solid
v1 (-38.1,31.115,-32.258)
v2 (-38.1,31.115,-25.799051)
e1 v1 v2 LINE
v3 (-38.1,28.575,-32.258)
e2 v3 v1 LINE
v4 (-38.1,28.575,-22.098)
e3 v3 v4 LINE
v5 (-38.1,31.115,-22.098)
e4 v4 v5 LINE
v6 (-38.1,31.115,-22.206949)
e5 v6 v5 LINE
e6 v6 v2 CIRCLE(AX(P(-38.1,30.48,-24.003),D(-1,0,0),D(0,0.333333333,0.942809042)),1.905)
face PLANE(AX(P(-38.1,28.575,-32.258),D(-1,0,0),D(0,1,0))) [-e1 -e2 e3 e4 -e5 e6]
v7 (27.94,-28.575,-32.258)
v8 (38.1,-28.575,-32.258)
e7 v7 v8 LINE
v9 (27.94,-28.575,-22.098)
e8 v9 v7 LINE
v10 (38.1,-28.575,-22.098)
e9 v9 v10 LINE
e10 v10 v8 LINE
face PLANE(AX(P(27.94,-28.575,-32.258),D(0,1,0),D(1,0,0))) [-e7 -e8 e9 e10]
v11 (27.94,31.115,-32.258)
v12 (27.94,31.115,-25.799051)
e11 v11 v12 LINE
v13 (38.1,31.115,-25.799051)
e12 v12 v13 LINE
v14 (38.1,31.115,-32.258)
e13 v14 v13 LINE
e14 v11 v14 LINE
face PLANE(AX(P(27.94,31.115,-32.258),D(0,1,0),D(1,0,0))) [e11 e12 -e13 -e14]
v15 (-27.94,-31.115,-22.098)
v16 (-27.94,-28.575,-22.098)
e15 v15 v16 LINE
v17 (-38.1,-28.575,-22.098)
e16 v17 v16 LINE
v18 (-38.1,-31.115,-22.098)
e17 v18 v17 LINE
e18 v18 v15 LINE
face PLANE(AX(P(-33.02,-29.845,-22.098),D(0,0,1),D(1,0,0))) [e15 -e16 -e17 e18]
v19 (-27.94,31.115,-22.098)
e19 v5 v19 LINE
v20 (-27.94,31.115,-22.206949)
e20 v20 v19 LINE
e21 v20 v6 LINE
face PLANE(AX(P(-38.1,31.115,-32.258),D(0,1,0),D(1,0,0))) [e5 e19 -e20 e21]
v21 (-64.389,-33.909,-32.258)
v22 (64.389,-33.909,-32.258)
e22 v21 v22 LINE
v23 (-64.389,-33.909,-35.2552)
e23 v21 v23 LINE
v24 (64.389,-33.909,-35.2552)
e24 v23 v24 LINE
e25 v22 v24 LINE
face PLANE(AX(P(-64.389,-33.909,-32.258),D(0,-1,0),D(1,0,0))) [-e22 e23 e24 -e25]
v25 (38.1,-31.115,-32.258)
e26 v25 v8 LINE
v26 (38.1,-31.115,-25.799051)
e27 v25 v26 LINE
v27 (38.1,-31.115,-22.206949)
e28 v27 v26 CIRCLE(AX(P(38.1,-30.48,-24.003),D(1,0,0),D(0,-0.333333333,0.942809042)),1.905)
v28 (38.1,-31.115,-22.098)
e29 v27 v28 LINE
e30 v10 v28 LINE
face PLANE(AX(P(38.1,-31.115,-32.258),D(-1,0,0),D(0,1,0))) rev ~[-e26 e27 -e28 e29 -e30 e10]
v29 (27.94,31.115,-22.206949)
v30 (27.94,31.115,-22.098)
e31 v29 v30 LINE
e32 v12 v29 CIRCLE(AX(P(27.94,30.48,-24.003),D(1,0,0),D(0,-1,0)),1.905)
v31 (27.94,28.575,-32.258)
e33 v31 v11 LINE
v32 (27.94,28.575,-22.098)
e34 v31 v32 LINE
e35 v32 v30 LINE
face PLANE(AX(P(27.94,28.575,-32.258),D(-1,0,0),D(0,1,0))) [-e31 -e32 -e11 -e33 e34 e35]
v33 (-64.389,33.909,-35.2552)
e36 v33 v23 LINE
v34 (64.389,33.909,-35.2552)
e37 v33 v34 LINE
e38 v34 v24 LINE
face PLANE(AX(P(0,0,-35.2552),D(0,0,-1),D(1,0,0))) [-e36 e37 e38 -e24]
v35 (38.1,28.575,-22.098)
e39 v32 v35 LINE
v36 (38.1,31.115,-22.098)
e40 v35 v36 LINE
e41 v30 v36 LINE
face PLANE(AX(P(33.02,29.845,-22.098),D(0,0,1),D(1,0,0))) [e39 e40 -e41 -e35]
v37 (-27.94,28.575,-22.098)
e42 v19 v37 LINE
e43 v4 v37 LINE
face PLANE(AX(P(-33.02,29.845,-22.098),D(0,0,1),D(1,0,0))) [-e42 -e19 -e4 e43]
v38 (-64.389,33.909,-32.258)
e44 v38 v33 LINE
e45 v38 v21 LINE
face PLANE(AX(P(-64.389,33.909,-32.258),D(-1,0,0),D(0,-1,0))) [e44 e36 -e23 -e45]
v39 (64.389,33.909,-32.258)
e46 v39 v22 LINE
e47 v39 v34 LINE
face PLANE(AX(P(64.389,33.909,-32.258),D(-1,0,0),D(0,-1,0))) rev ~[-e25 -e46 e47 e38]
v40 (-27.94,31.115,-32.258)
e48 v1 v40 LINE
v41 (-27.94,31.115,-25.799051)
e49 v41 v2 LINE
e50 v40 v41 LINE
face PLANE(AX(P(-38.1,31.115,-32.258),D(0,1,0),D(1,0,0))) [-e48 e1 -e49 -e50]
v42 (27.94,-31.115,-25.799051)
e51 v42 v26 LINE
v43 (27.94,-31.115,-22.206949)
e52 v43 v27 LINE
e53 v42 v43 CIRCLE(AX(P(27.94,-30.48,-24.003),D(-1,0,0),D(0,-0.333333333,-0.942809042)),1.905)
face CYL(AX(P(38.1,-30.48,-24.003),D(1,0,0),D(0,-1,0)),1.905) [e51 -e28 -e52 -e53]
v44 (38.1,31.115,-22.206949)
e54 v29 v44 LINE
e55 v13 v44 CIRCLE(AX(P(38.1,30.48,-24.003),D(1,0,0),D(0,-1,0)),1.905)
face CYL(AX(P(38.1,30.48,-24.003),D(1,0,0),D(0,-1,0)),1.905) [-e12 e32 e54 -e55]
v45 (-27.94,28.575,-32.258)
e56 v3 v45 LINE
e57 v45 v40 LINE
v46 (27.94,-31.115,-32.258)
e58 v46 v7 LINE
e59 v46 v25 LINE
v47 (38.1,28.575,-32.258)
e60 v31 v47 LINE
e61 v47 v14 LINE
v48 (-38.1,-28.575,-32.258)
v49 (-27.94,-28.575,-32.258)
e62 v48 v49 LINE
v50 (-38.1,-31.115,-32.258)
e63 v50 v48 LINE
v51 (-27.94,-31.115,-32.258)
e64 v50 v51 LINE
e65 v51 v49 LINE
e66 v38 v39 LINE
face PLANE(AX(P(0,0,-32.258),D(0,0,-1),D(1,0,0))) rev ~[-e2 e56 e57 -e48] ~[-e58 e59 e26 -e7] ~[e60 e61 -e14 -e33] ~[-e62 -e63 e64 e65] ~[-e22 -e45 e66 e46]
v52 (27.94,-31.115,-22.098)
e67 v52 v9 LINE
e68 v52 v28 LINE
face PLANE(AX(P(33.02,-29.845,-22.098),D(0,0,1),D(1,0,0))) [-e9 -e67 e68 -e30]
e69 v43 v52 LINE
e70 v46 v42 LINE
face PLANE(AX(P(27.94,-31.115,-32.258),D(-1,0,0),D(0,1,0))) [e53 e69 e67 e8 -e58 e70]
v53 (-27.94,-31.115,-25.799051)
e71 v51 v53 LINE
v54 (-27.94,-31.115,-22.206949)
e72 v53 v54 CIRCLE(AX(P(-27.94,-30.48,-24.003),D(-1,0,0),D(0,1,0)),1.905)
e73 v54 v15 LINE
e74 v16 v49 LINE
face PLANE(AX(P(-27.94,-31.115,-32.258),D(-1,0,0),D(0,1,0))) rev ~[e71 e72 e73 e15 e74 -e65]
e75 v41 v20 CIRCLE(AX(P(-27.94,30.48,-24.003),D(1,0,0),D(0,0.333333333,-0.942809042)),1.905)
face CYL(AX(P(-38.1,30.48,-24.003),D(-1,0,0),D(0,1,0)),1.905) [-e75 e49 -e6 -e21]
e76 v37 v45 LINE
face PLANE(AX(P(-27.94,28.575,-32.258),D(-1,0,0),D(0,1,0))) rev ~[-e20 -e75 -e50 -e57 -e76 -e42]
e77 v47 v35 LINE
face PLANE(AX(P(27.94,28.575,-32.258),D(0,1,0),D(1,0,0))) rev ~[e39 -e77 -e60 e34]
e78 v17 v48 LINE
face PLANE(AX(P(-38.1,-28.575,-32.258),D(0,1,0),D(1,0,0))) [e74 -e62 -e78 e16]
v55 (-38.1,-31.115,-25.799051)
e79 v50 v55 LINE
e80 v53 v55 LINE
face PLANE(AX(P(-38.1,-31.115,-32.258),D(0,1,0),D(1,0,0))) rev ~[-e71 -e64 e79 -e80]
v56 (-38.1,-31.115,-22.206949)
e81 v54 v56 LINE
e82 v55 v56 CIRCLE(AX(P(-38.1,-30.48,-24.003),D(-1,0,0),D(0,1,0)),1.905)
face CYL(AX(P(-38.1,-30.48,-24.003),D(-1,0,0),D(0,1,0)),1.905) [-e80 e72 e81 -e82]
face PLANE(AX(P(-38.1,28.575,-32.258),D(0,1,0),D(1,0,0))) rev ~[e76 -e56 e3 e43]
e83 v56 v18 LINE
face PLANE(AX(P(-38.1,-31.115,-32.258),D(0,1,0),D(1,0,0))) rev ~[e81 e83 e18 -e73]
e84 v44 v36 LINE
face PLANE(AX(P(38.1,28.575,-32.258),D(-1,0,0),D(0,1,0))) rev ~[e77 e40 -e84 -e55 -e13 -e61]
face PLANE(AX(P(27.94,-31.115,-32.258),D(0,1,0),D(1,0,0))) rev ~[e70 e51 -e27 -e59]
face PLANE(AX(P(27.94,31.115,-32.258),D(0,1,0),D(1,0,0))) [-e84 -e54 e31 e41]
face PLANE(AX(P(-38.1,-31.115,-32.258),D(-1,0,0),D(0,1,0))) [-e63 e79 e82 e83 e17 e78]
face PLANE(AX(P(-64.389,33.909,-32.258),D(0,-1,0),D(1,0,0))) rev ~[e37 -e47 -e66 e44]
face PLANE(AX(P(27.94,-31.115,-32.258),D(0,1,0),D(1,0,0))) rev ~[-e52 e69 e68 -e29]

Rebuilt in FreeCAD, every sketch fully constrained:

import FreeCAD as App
import Part
import Sketcher
from FreeCAD import Vector
Q = App.Units.Quantity

doc = App.newDocument("Part")
body = doc.addObject("PartDesign::Body", "Body")

sketch1 = doc.addObject("Sketcher::SketchObject", "Sketch")
body.addObject(sketch1)
sketch1.AttachmentSupport = (doc.XY_Plane, [""])
sketch1.MapMode = "FlatFace"
sketch1.AttachmentOffset = App.Placement(Vector(0, 0, -1.27 * 25.4), App.Rotation())
sketch1.addGeometry([
    Part.LineSegment(Vector(-64, -34, 0), Vector(-64, 34, 0)),
    Part.LineSegment(Vector(-64, 34, 0), Vector(64, 34, 0)),
    Part.LineSegment(Vector(64, 34, 0), Vector(64, -34, 0)),
    Part.LineSegment(Vector(64, -34, 0), Vector(-64, -34, 0)),
], False)
sketch1.addConstraint([
    Sketcher.Constraint("Coincident", 0, 2, 1, 1),
    Sketcher.Constraint("Coincident", 1, 2, 2, 1),
    Sketcher.Constraint("Coincident", 2, 2, 3, 1),
    Sketcher.Constraint("Coincident", 3, 2, 0, 1),
    Sketcher.Constraint("Vertical", 0),
    Sketcher.Constraint("Horizontal", 1),
    Sketcher.Constraint("Vertical", 2),
    Sketcher.Constraint("Horizontal", 3),
    Sketcher.Constraint("Symmetric", 0, 2, 2, 2, -1, 1),
    Sketcher.Constraint("DistanceX", 1, 1, 1, 2, Q("5.07 in")),
    Sketcher.Constraint("DistanceY", 0, 1, 0, 2, Q("2.67 in")),
])
pad1 = doc.addObject("PartDesign::Pad", "Pad")
body.addObject(pad1)
pad1.Profile = sketch1
pad1.Length = Q("0.118 in")
pad1.Reversed = True

sketch2 = doc.addObject("Sketcher::SketchObject", "Sketch001")
body.addObject(sketch2)
sketch2.AttachmentSupport = (doc.XY_Plane, [""])
sketch2.MapMode = "FlatFace"
sketch2.AttachmentOffset = App.Placement(Vector(0, 0, -1.27 * 25.4), App.Rotation())
sketch2.addGeometry([
    Part.LineSegment(Vector(-38.1, -28.6, 0), Vector(-38.1, -31.1, 0)),
    Part.LineSegment(Vector(-38.1, -31.1, 0), Vector(-27.9, -31.1, 0)),
    Part.LineSegment(Vector(-27.9, -31.1, 0), Vector(-27.9, -28.6, 0)),
    Part.LineSegment(Vector(-27.9, -28.6, 0), Vector(-38.1, -28.6, 0)),
    Part.LineSegment(Vector(27.9, -28.6, 0), Vector(27.9, -31.1, 0)),
    Part.LineSegment(Vector(27.9, -31.1, 0), Vector(38.1, -31.1, 0)),
    Part.LineSegment(Vector(38.1, -31.1, 0), Vector(38.1, -28.6, 0)),
    Part.LineSegment(Vector(38.1, -28.6, 0), Vector(27.9, -28.6, 0)),
    Part.LineSegment(Vector(27.9, 31.1, 0), Vector(27.9, 28.6, 0)),
    Part.LineSegment(Vector(27.9, 28.6, 0), Vector(38.1, 28.6, 0)),
    Part.LineSegment(Vector(38.1, 28.6, 0), Vector(38.1, 31.1, 0)),
    Part.LineSegment(Vector(38.1, 31.1, 0), Vector(27.9, 31.1, 0)),
    Part.LineSegment(Vector(-38.1, 31.1, 0), Vector(-38.1, 28.6, 0)),
    Part.LineSegment(Vector(-38.1, 28.6, 0), Vector(-27.9, 28.6, 0)),
    Part.LineSegment(Vector(-27.9, 28.6, 0), Vector(-27.9, 31.1, 0)),
    Part.LineSegment(Vector(-27.9, 31.1, 0), Vector(-38.1, 31.1, 0)),
], False)
sketch2.addConstraint([
    Sketcher.Constraint("Coincident", 0, 2, 1, 1),
    Sketcher.Constraint("Coincident", 1, 2, 2, 1),
    Sketcher.Constraint("Coincident", 2, 2, 3, 1),
    Sketcher.Constraint("Coincident", 3, 2, 0, 1),
    Sketcher.Constraint("Coincident", 4, 2, 5, 1),
    Sketcher.Constraint("Coincident", 5, 2, 6, 1),
    Sketcher.Constraint("Coincident", 6, 2, 7, 1),
    Sketcher.Constraint("Coincident", 7, 2, 4, 1),
    Sketcher.Constraint("Coincident", 8, 2, 9, 1),
    Sketcher.Constraint("Coincident", 9, 2, 10, 1),
    Sketcher.Constraint("Coincident", 10, 2, 11, 1),
    Sketcher.Constraint("Coincident", 11, 2, 8, 1),
    Sketcher.Constraint("Coincident", 12, 2, 13, 1),
    Sketcher.Constraint("Coincident", 13, 2, 14, 1),
    Sketcher.Constraint("Coincident", 14, 2, 15, 1),
    Sketcher.Constraint("Coincident", 15, 2, 12, 1),
    Sketcher.Constraint("Vertical", 0),
    Sketcher.Constraint("Horizontal", 1),
    Sketcher.Constraint("Vertical", 2),
    Sketcher.Constraint("Horizontal", 3),
    Sketcher.Constraint("Vertical", 4),
    Sketcher.Constraint("Horizontal", 5),
    Sketcher.Constraint("Vertical", 6),
    Sketcher.Constraint("Horizontal", 7),
    Sketcher.Constraint("Vertical", 8),
    Sketcher.Constraint("Horizontal", 9),
    Sketcher.Constraint("Vertical", 10),
    Sketcher.Constraint("Horizontal", 11),
    Sketcher.Constraint("Vertical", 12),
    Sketcher.Constraint("Horizontal", 13),
    Sketcher.Constraint("Vertical", 14),
    Sketcher.Constraint("Horizontal", 15),
    Sketcher.Constraint("Symmetric", 2, 2, 8, 2, -1, 1),
    Sketcher.Constraint("Symmetric", 0, 2, 10, 2, -1, 1),
    Sketcher.Constraint("Symmetric", 6, 2, 12, 2, -1, 1),
    Sketcher.Constraint("Symmetric", 4, 2, 14, 2, -1, 1),
    Sketcher.Constraint("Symmetric", 1, 2, 4, 2, -2),
    Sketcher.Constraint("Symmetric", 3, 2, 6, 2, -2),
    Sketcher.Constraint("DistanceX", 1, 1, 1, 2, Q("0.4 in")),
    Sketcher.Constraint("DistanceY", 0, 2, 0, 1, Q("0.1 in")),
    Sketcher.Constraint("DistanceX", 0, 2, 5, 2, Q("3 in")),
    Sketcher.Constraint("DistanceY", 7, 2, 8, 2, Q("2.25 in")),
])
pad2 = doc.addObject("PartDesign::Pad", "Pad001")
body.addObject(pad2)
pad2.Profile = sketch2
pad2.Length = Q("0.4 in")

sketch3 = doc.addObject("Sketcher::SketchObject", "Sketch002")
body.addObject(sketch3)
sketch3.AttachmentSupport = (doc.YZ_Plane, [""])
sketch3.MapMode = "FlatFace"
sketch3.AttachmentOffset = App.Placement(Vector(0, 0, 1.5 * 25.4), App.Rotation())
sketch3.addGeometry([
    Part.Circle(Vector(30.5, -24, 0), Vector(0, 0, 1), 1.9),
    Part.Circle(Vector(-30.5, -24, 0), Vector(0, 0, 1), 1.9),
], False)
sketch3.addConstraint([
    Sketcher.Constraint("Equal", 0, 1),
    Sketcher.Constraint("Symmetric", 0, 3, 1, 3, -2),
    Sketcher.Constraint("Diameter", 0, Q("0.15 in")),
    Sketcher.Constraint("DistanceX", -1, 1, 0, 3, Q("1.2 in")),
    Sketcher.Constraint("DistanceY", 0, 3, -1, 1, Q("0.945 in")),
])
pad3 = doc.addObject("PartDesign::Pad", "Pad002")
body.addObject(pad3)
pad3.Profile = sketch3
pad3.Length = Q("0.4 in")
pad3.Reversed = True

sketch4 = doc.addObject("Sketcher::SketchObject", "Sketch003")
body.addObject(sketch4)
sketch4.AttachmentSupport = (doc.YZ_Plane, [""])
sketch4.MapMode = "FlatFace"
sketch4.AttachmentOffset = App.Placement(Vector(0, 0, -1.5 * 25.4), App.Rotation())
sketch4.addGeometry([
    Part.Circle(Vector(-30.5, -24, 0), Vector(0, 0, 1), 1.9),
    Part.Circle(Vector(30.5, -24, 0), Vector(0, 0, 1), 1.9),
], False)
sketch4.addConstraint([
    Sketcher.Constraint("Equal", 0, 1),
    Sketcher.Constraint("Symmetric", 0, 3, 1, 3, -2),
    Sketcher.Constraint("Diameter", 0, Q("0.15 in")),
    Sketcher.Constraint("DistanceX", 0, 3, -1, 1, Q("1.2 in")),
    Sketcher.Constraint("DistanceY", 0, 3, -1, 1, Q("0.945 in")),
])
pad4 = doc.addObject("PartDesign::Pad", "Pad003")
body.addObject(pad4)
pad4.Profile = sketch4
pad4.Length = Q("0.4 in")

doc.recompute()
